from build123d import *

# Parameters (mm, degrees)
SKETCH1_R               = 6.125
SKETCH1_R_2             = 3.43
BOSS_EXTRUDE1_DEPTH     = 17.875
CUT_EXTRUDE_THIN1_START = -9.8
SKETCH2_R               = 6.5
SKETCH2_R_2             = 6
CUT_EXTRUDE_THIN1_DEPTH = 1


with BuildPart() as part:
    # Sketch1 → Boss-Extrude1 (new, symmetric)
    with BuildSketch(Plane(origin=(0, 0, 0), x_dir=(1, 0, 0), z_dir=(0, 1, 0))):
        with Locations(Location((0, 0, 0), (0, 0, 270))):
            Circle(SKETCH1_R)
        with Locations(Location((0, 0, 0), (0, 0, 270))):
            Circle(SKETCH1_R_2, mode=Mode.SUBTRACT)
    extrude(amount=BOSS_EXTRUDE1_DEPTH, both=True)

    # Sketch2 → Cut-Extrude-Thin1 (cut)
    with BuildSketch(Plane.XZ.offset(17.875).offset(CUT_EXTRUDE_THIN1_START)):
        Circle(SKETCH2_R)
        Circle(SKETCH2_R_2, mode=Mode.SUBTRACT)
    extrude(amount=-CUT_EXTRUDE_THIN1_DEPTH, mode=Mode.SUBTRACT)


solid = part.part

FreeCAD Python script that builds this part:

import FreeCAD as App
import Part
import Sketcher

V = App.Vector

doc = App.newDocument("Part")
params = doc.addObject("Spreadsheet::Sheet", "Params")
for row, (alias, value) in enumerate([
    ("sketch1_diameter", "12.25 mm"),
    ("sketch1_diameter2", "6.86 mm"),
    ("pad1_length", "35.75 mm"),
    ("sketch2_diameter", "13 mm"),
    ("sketch2_diameter2", "12 mm"),
    ("pocket1_length", "1 mm"),
], start=1):
    params.set(f"A{row}", alias)
    params.set(f"B{row}", "=" + value)
    params.setAlias(f"B{row}", alias)

body = doc.addObject("PartDesign::Body", "Body")

# Sketch on XZ plane
sketch1 = body.newObject("Sketcher::SketchObject", "Sketch")
sketch1.AttachmentSupport = (doc.getObject("XZ_Plane"), [""])
sketch1.MapMode = "FlatFace"
sketch1.addGeometry([
    Part.Circle(V(0, 0, 0), V(0, 0, 1), 6.1),
    Part.Circle(V(0, 0, 0), V(0, 0, 1), 3.4),
], False)
sketch1.addConstraint([
    Sketcher.Constraint("Coincident", 0, 3, -1, 1),
    Sketcher.Constraint("Coincident", 1, 3, -1, 1),
    Sketcher.Constraint("Diameter", 0, 12.25),
    Sketcher.Constraint("Diameter", 1, 6.86),
])
sketch1.setExpression("Constraints[2]", "Params.sketch1_diameter")
sketch1.setExpression("Constraints[3]", "Params.sketch1_diameter2")
pad1 = body.newObject("PartDesign::Pad", "Pad")
pad1.Profile = sketch1
pad1.setExpression("Length", "Params.pad1_length")
pad1.Midplane = True

# Sketch on XZ plane
sketch2 = body.newObject("Sketcher::SketchObject", "Sketch001")
sketch2.AttachmentSupport = (doc.getObject("XZ_Plane"), [""])
sketch2.MapMode = "FlatFace"
sketch2.AttachmentOffset = App.Placement(V(0, 0, 8.075), App.Rotation())
sketch2.addGeometry([
    Part.Circle(V(0, 0, 0), V(0, 0, 1), 6),
    Part.Circle(V(0, 0, 0), V(0, 0, 1), 6),
], False)
sketch2.addConstraint([
    Sketcher.Constraint("Coincident", 0, 3, -1, 1),
    Sketcher.Constraint("Coincident", 1, 3, -1, 1),
    Sketcher.Constraint("Diameter", 0, 13.0),
    Sketcher.Constraint("Diameter", 1, 12.0),
])
sketch2.setExpression("Constraints[2]", "Params.sketch2_diameter")
sketch2.setExpression("Constraints[3]", "Params.sketch2_diameter2")
pocket1 = body.newObject("PartDesign::Pocket", "Pocket")
pocket1.Profile = sketch2
pocket1.setExpression("Length", "Params.pocket1_length")

doc.recompute()
